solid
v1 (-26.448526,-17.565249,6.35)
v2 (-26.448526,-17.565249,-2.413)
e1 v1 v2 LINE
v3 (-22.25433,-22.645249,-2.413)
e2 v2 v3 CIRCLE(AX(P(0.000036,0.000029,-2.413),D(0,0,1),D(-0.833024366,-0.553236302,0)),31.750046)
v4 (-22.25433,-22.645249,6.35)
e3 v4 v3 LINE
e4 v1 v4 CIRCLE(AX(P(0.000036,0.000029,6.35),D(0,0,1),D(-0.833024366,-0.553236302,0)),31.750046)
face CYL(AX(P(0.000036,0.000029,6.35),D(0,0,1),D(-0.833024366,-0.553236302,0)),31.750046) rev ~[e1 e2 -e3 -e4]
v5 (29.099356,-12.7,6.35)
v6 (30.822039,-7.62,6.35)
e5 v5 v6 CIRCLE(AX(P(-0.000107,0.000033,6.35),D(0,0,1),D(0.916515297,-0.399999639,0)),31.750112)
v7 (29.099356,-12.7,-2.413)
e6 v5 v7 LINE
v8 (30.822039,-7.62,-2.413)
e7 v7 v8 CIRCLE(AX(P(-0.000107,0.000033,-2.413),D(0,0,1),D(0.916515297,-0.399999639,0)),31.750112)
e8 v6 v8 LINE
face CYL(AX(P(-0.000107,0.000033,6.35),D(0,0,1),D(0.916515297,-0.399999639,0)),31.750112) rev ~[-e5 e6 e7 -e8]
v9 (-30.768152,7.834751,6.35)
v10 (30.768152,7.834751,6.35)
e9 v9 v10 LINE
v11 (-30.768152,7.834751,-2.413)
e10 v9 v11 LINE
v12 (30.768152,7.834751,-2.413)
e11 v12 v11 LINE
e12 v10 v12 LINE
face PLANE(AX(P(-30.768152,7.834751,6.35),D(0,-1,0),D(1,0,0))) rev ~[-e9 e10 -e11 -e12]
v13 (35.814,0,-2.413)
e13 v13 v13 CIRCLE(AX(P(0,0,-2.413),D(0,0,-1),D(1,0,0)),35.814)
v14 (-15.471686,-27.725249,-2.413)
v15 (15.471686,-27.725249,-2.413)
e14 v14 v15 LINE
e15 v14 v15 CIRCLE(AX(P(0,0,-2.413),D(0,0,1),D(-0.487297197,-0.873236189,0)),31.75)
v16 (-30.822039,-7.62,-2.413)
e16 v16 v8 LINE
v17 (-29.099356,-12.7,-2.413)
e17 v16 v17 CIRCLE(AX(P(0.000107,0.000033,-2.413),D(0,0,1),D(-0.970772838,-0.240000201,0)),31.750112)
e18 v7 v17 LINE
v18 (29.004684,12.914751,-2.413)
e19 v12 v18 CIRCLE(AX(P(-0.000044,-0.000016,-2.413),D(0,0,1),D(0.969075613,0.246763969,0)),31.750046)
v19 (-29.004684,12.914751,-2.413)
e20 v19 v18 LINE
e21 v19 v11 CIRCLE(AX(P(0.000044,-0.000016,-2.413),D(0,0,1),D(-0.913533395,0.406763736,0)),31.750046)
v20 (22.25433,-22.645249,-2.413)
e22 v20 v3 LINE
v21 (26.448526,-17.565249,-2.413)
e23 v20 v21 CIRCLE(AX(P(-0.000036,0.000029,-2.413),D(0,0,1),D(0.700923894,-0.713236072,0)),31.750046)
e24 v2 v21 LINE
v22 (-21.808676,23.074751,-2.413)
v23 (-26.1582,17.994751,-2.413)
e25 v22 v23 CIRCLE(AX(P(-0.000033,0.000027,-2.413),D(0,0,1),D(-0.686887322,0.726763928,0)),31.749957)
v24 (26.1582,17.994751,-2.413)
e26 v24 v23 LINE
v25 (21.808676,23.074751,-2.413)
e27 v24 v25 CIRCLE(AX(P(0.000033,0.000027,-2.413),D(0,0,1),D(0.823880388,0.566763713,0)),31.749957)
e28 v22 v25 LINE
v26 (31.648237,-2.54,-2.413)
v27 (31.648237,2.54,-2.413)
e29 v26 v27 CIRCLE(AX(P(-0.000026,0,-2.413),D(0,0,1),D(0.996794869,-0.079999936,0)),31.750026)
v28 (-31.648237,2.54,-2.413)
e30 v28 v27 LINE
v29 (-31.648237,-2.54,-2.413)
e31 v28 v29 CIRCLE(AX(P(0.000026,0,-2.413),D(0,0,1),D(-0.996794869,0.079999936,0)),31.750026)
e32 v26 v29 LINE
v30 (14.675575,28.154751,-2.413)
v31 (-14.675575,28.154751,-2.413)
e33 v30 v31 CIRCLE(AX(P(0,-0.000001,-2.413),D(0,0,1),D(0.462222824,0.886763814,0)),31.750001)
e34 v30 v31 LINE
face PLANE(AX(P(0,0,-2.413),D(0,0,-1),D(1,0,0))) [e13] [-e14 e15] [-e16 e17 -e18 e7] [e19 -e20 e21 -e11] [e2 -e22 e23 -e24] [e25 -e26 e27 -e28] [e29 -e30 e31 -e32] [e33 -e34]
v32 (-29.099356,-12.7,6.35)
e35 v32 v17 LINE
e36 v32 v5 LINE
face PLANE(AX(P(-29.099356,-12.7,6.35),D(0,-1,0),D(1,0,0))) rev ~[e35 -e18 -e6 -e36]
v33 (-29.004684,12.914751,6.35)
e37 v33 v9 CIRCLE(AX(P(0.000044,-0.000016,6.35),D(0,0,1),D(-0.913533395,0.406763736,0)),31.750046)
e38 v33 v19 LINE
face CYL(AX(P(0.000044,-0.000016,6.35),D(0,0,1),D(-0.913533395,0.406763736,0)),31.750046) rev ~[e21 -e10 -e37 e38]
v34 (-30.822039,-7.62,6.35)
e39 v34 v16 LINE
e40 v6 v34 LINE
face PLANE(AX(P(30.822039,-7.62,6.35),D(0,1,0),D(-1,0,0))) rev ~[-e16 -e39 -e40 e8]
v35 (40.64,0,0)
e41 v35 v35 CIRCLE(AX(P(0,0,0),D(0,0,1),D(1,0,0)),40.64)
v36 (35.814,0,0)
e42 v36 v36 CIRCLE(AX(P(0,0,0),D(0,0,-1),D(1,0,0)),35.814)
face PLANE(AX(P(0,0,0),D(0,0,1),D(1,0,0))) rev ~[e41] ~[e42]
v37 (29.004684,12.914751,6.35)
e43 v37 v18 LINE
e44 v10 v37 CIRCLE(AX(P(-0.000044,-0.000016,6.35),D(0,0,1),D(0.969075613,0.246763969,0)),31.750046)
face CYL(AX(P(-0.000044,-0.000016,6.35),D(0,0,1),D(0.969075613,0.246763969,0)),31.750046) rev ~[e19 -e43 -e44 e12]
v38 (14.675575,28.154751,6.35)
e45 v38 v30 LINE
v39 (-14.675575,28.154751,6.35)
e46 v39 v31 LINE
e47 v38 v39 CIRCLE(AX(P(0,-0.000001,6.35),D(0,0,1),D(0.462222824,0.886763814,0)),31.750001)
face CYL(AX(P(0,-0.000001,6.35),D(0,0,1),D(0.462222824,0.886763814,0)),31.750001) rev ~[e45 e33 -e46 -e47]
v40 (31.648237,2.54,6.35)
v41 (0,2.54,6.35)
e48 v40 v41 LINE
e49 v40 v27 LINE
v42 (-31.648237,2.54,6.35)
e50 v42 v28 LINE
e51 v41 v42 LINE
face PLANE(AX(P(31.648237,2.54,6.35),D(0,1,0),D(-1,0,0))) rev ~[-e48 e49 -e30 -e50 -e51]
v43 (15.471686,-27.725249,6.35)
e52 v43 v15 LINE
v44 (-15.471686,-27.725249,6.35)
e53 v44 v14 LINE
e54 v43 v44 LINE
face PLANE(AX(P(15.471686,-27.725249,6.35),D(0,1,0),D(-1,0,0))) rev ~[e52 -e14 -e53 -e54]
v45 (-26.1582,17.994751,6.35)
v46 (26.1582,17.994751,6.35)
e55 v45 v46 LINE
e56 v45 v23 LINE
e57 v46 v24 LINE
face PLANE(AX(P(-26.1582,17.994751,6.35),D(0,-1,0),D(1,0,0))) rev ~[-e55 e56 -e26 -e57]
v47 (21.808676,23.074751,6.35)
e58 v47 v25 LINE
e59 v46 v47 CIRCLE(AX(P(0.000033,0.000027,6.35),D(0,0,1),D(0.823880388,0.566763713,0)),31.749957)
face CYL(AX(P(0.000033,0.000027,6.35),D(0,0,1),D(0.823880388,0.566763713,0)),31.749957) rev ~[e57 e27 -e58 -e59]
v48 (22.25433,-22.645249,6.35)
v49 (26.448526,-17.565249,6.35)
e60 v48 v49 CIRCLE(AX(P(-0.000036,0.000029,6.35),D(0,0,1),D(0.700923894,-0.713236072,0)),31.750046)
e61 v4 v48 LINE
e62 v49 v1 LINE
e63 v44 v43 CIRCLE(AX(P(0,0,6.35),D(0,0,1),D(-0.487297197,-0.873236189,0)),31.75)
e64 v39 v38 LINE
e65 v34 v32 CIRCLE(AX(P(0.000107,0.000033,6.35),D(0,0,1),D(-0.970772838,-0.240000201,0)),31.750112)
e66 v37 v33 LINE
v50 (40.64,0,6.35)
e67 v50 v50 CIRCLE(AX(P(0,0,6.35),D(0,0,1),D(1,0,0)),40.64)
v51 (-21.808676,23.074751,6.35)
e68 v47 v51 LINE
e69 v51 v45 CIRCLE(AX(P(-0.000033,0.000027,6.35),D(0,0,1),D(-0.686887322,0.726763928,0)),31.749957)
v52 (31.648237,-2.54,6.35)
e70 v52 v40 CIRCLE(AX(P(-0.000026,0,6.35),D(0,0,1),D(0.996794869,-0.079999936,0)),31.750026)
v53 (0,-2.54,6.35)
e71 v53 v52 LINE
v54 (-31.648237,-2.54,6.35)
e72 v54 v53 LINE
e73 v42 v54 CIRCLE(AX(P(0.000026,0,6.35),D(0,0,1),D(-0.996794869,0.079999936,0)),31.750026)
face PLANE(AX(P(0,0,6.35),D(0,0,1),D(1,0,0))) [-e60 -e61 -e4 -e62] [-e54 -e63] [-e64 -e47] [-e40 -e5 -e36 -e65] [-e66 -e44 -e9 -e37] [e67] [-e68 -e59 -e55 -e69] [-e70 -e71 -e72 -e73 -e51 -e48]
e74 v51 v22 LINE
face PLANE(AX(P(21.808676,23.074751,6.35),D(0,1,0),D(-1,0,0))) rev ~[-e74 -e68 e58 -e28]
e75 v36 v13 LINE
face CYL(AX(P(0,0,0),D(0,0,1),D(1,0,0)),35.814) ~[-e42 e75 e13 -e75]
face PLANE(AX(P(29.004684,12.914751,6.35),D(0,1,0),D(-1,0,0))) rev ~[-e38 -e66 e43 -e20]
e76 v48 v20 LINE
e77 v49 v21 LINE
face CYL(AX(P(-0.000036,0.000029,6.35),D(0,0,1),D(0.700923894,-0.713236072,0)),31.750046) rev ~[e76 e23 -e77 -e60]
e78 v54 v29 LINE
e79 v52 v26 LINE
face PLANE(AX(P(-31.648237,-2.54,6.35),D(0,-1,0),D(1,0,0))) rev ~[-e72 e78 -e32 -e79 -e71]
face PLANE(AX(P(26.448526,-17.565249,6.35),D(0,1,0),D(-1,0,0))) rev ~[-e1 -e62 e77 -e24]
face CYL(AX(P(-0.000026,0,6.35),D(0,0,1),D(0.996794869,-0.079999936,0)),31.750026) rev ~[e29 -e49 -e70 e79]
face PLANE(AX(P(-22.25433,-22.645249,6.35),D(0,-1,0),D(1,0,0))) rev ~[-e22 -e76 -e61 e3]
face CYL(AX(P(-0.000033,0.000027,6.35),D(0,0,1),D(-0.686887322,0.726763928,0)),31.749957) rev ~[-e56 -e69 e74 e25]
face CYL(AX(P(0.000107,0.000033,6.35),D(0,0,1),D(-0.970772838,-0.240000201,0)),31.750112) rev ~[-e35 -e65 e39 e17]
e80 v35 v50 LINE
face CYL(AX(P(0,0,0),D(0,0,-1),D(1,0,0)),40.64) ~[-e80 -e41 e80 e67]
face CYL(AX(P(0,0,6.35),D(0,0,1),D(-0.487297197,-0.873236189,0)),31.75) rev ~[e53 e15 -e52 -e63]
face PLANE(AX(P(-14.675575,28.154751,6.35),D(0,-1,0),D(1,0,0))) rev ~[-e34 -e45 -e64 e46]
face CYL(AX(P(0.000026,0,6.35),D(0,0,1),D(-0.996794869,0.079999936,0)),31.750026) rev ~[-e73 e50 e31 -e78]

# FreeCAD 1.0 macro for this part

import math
import FreeCAD as App
import Part
import Sketcher
Q = App.Units.Quantity

doc = App.newDocument("Part")
body = doc.addObject("PartDesign::Body", "Body")

# Sketch on XY plane
sketch1 = body.newObject("Sketcher::SketchObject", "Sketch")
sketch1.AttachmentSupport = (doc.getObject("XY_Plane"), [""])
sketch1.MapMode = "FlatFace"
sketch1.addGeometry([
    Part.Circle(App.Vector(0, 0, 0), App.Vector(0, 0, 1), 40.6),
    Part.Circle(App.Vector(0, 0, 0), App.Vector(0, 0, 1), 2.5),
], False)
sketch1.addConstraint([
    Sketcher.Constraint("Coincident", 0, 3, -1, 1),
    Sketcher.Constraint("Coincident", 1, 3, -1, 1),
    Sketcher.Constraint("Diameter", 0, Q("3.2 in")),
    Sketcher.Constraint("Diameter", 1, Q("0.2 in")),
])
pad1 = body.newObject("PartDesign::Pad", "Pad")
pad1.Profile = sketch1
pad1.Length = Q("0.25 in")

# Sketch on XY plane
sketch2 = body.newObject("Sketcher::SketchObject", "Sketch001")
sketch2.AttachmentSupport = (doc.getObject("XY_Plane"), [""])
sketch2.MapMode = "FlatFace"
sketch2.addGeometry(Part.Circle(App.Vector(0, 0, 0), App.Vector(0, 0, 1), 36), False)
sketch2.addConstraint([
    Sketcher.Constraint("Coincident", 0, 3, -1, 1),
    Sketcher.Constraint("Diameter", 0, Q("2.82 in")),
])
pad2 = body.newObject("PartDesign::Pad", "Pad001")
pad2.Profile = sketch2
pad2.Length = Q("0.095 in")
pad2.Reversed = True

# Sketch on XY plane
sketch3 = body.newObject("Sketcher::SketchObject", "Sketch002")
sketch3.AttachmentSupport = (doc.getObject("XY_Plane"), [""])
sketch3.MapMode = "FlatFace"
sketch3.AttachmentOffset = App.Placement(App.Vector(0, 0, 0.25 * 25.4), App.Rotation())
sketch3.addGeometry([
    Part.LineSegment(App.Vector(-26.1582, 17.994751, 0), App.Vector(26.1582, 17.994751, 0)),  # 0
    Part.ArcOfCircle(Part.Circle(App.Vector(0.000033, 0.000027, 0), App.Vector(0, 0, 1), 31.749957), math.radians(34.524857), math.radians(46.615784)),  # 1
    Part.LineSegment(App.Vector(21.808676, 23.074751, 0), App.Vector(-21.808676, 23.074751, 0)),  # 2
    Part.ArcOfCircle(Part.Circle(App.Vector(-0.000033, 0.000027, 0), App.Vector(0, 0, 1), 31.749957), math.radians(133.384216), math.radians(145.475143)),  # 3
    Part.ArcOfCircle(Part.Circle(App.Vector(0.000026, 0, 0), App.Vector(0, 0, 1), 31.750026), math.radians(175.411438), math.radians(184.588562)),  # 4
    Part.LineSegment(App.Vector(-31.648237, -2.54, 0), App.Vector(31.648237, -2.54, 0)),  # 5
    Part.ArcOfCircle(Part.Circle(App.Vector(-0.000026, 0, 0), App.Vector(0, 0, 1), 31.750026), math.radians(-4.588562), math.radians(4.588562)),  # 6
    Part.LineSegment(App.Vector(31.648237, 2.54, 0), App.Vector(-31.648237, 2.54, 0)),  # 7
    Part.ArcOfCircle(Part.Circle(App.Vector(0.000044, -0.000016, 0), App.Vector(0, 0, 1), 31.750046), math.radians(155.998301), math.radians(165.713897)),  # 8
    Part.LineSegment(App.Vector(-30.768152, 7.834751, 0), App.Vector(30.768152, 7.834751, 0)),  # 9
    Part.ArcOfCircle(Part.Circle(App.Vector(-0.000044, -0.000016, 0), App.Vector(0, 0, 1), 31.750046), math.radians(14.286103), math.radians(24.001699)),  # 10
    Part.LineSegment(App.Vector(29.004684, 12.914751, 0), App.Vector(-29.004684, 12.914751, 0)),  # 11
    Part.LineSegment(App.Vector(-14.675575, 28.154751, 0), App.Vector(14.675575, 28.154751, 0)),  # 12
    Part.ArcOfCircle(Part.Circle(App.Vector(0, -0.000001, 0), App.Vector(0, 0, 1), 31.750001), math.radians(62.469364), math.radians(117.530636)),  # 13
    Part.LineSegment(App.Vector(30.822039, -7.62, 0), App.Vector(-30.822039, -7.62, 0)),  # 14
    Part.ArcOfCircle(Part.Circle(App.Vector(0.000107, 0.000033, 0), App.Vector(0, 0, 1), 31.750112), math.radians(-166.113448), math.radians(-156.421844)),  # 15
    Part.LineSegment(App.Vector(-29.099356, -12.7, 0), App.Vector(29.099356, -12.7, 0)),  # 16
    Part.ArcOfCircle(Part.Circle(App.Vector(-0.000107, 0.000033, 0), App.Vector(0, 0, 1), 31.750112), math.radians(-23.578156), math.radians(-13.886552)),  # 17
    Part.LineSegment(App.Vector(26.448526, -17.565249, 0), App.Vector(-26.448526, -17.565249, 0)),  # 18
    Part.ArcOfCircle(Part.Circle(App.Vector(0.000036, 0.000029, 0), App.Vector(0, 0, 1), 31.750046), math.radians(-146.410679), math.radians(-134.501175)),  # 19
    Part.LineSegment(App.Vector(-22.25433, -22.645249, 0), App.Vector(22.25433, -22.645249, 0)),  # 20
    Part.ArcOfCircle(Part.Circle(App.Vector(-0.000036, 0.000029, 0), App.Vector(0, 0, 1), 31.750046), math.radians(-45.498825), math.radians(-33.589321)),  # 21
    Part.LineSegment(App.Vector(15.471686, -27.725249, 0), App.Vector(-15.471686, -27.725249, 0)),  # 22
    Part.ArcOfCircle(Part.Circle(App.Vector(0, 0, 0), App.Vector(0, 0, 1), 31.75), math.radians(-119.163088), math.radians(-60.836912)),  # 23
], False)
sketch3.addConstraint([
    Sketcher.Constraint("Coincident", 0, 2, 1, 1),
    Sketcher.Constraint("Coincident", 1, 2, 2, 1),
    Sketcher.Constraint("Coincident", 2, 2, 3, 1),
    Sketcher.Constraint("Coincident", 3, 2, 0, 1),
    Sketcher.Constraint("Coincident", 4, 2, 5, 1),
    Sketcher.Constraint("Coincident", 5, 2, 6, 1),
    Sketcher.Constraint("Coincident", 6, 2, 7, 1),
    Sketcher.Constraint("Coincident", 7, 2, 4, 1),
    Sketcher.Constraint("Coincident", 8, 2, 9, 1),
    Sketcher.Constraint("Coincident", 9, 2, 10, 1),
    Sketcher.Constraint("Coincident", 10, 2, 11, 1),
    Sketcher.Constraint("Coincident", 11, 2, 8, 1),
    Sketcher.Constraint("Coincident", 12, 1, 13, 2),
    Sketcher.Constraint("Coincident", 13, 1, 12, 2),
    Sketcher.Constraint("Coincident", 14, 2, 15, 1),
    Sketcher.Constraint("Coincident", 15, 2, 16, 1),
    Sketcher.Constraint("Coincident", 16, 2, 17, 1),
    Sketcher.Constraint("Coincident", 17, 2, 14, 1),
    Sketcher.Constraint("Coincident", 18, 2, 19, 1),
    Sketcher.Constraint("Coincident", 19, 2, 20, 1),
    Sketcher.Constraint("Coincident", 20, 2, 21, 1),
    Sketcher.Constraint("Coincident", 21, 2, 18, 1),
    Sketcher.Constraint("Coincident", 22, 1, 23, 2),
    Sketcher.Constraint("Coincident", 23, 1, 22, 2),
    Sketcher.Constraint("Horizontal", 0),
    Sketcher.Constraint("Horizontal", 2),
    Sketcher.Constraint("Horizontal", 5),
    Sketcher.Constraint("Horizontal", 7),
    Sketcher.Constraint("Horizontal", 9),
    Sketcher.Constraint("Horizontal", 11),
    Sketcher.Constraint("Horizontal", 12),
    Sketcher.Constraint("Horizontal", 14),
    Sketcher.Constraint("Horizontal", 16),
    Sketcher.Constraint("Horizontal", 18),
    Sketcher.Constraint("Horizontal", 20),
    Sketcher.Constraint("Horizontal", 22),
    Sketcher.Constraint("Coincident", 13, 3, -1, 1),
    Sketcher.Constraint("Coincident", 23, 3, -1, 1),
    Sketcher.Constraint("Coincident", 19, 3, 1, 3),
    Sketcher.Constraint("Coincident", 21, 3, 3, 3),
    Sketcher.Constraint("Equal", 1, 3),
    Sketcher.Constraint("Equal", 4, 6),
    Sketcher.Constraint("Equal", 8, 10),
    Sketcher.Constraint("Equal", 15, 17),
    Sketcher.Constraint("Equal", 10, 19),
    Sketcher.Constraint("Equal", 19, 21),
    Sketcher.Constraint("Equal", 13, 23),
    Sketcher.Constraint("Symmetric", 4, 3, 6, 3, -1, 1),
    Sketcher.Constraint("Symmetric", 1, 3, 3, 3, -2),
    Sketcher.Constraint("Symmetric", 8, 3, 10, 3, -2),
    Sketcher.Constraint("Symmetric", 15, 3, 17, 3, -2),
    Sketcher.Constraint("Symmetric", 5, 2, 6, 2, -1),
    Sketcher.Constraint("Radius", 13, Q("1.25 in")),
    Sketcher.Constraint("DistanceY", 18, 2, 8, 2, Q("1 in")),
    Sketcher.Constraint("DistanceY", 4, 2, -1, 1, Q("0.1 in")),
    Sketcher.Constraint("DistanceY", 14, 2, -1, 1, Q("0.3 in")),
    Sketcher.Constraint("DistanceY", 15, 2, -1, 1, Q("0.5 in")),
    Sketcher.Constraint("DistanceY", 0, 2, 1, 2, Q("0.2 in")),
    Sketcher.Constraint("DistanceY", 8, 2, 3, 2, Q("0.4 in")),
    Sketcher.Constraint("DistanceY", 9, 2, 10, 2, Q("0.2 in")),
    Sketcher.Constraint("DistanceY", 2, 2, 12, 1, Q("0.2 in")),
    Sketcher.Constraint("DistanceY", 19, 2, 18, 2, Q("0.2 in")),
    Sketcher.Constraint("DistanceY", 22, 1, 20, 2, Q("0.2 in")),
    Sketcher.Constraint("Radius", 15, 31.750112),
    Sketcher.Constraint("DistanceX", 0, 1, 0, 2, 52.3164),
    Sketcher.Constraint("Radius", 1, 31.749957),
    Sketcher.Constraint("Radius", 4, 31.750026),
    Sketcher.Constraint("Radius", 8, 31.750046),
    Sketcher.Constraint("DistanceX", 2, 2, 2, 1, 43.617352),
    Sketcher.Constraint("DistanceX", 11, 2, 11, 1, 58.009368),
    Sketcher.Constraint("DistanceX", 12, 1, 12, 2, 29.35115),
    Sketcher.Constraint("DistanceX", 4, 2, 21, 3, 31.648201),
    Sketcher.Constraint("DistanceX", 4, 2, 14, 2, 0.826198),
    Sketcher.Constraint("DistanceX", 9, 1, 9, 2, 61.536304),
    Sketcher.Constraint("DistanceX", 16, 1, 16, 2, 58.198712),
])
pocket1 = body.newObject("PartDesign::Pocket", "Pocket")
pocket1.Profile = sketch3
pocket1.Type = "ThroughAll"

doc.recompute()
